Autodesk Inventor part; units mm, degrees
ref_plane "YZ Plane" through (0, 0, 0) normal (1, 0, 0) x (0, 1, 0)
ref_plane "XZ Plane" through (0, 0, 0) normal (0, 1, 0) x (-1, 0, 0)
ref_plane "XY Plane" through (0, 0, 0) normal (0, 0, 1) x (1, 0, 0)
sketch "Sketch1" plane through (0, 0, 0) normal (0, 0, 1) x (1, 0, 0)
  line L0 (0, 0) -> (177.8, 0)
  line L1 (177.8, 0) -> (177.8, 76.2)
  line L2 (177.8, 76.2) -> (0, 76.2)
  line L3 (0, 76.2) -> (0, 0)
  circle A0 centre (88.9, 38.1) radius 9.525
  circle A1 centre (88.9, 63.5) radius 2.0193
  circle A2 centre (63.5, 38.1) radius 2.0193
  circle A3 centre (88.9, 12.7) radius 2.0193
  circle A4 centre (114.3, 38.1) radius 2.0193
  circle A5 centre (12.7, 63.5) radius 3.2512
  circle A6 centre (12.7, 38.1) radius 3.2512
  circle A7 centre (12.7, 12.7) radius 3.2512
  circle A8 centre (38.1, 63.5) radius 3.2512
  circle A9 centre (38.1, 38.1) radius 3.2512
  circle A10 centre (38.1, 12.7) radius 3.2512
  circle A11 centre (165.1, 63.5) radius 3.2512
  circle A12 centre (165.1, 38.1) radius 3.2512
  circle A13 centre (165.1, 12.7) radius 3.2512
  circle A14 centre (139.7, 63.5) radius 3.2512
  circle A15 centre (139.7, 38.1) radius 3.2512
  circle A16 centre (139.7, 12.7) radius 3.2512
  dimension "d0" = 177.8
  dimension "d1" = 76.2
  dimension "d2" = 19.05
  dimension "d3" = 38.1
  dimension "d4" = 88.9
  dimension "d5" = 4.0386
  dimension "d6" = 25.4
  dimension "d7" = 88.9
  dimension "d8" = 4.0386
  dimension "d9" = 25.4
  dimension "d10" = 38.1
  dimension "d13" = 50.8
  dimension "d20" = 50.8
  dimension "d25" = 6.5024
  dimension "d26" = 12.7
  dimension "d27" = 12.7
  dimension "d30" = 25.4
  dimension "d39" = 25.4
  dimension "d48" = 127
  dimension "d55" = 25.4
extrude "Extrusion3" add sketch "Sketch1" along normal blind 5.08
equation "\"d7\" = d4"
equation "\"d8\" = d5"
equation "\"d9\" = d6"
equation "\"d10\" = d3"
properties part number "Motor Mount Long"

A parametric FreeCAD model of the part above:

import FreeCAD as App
import Part
import Sketcher
from FreeCAD import Vector
Q = App.Units.Quantity

doc = App.newDocument("Part")
params = doc.addObject("Spreadsheet::Sheet", "Params")
for row, (alias, value) in enumerate([
    ("sketch1_diameter", "0.75 in"),
    ("sketch1_width", "7 in"),
    ("sketch1_height", "3 in"),
    ("sketch1_diameter2", "0.256 in"),
    ("sketch1_diameter3", "0.159 in"),
    ("pad1_length", "0.2 in"),
], start=1):
    params.set(f"A{row}", alias)
    params.set(f"B{row}", "=" + value)
    params.setAlias(f"B{row}", alias)

body = doc.addObject("PartDesign::Body", "Body")

# Sketch on XY plane
sketch1 = body.newObject("Sketcher::SketchObject", "Sketch")
sketch1.AttachmentSupport = (doc.getObject("XY_Plane"), [""])
sketch1.MapMode = "FlatFace"
sketch1.addGeometry([
    Part.LineSegment(Vector(0, 76.2, 0), Vector(0, 0, 0)),  # 0
    Part.LineSegment(Vector(0, 0, 0), Vector(177.8, 0, 0)),  # 1
    Part.LineSegment(Vector(177.8, 0, 0), Vector(177.8, 76.2, 0)),  # 2
    Part.LineSegment(Vector(177.8, 76.2, 0), Vector(0, 76.2, 0)),  # 3
    Part.Circle(Vector(12.7, 12.7, 0), Vector(0, 0, 1), 3.2512),  # 4
    Part.Circle(Vector(38.1, 12.7, 0), Vector(0, 0, 1), 3.2512),  # 5
    Part.Circle(Vector(88.9, 12.7, 0), Vector(0, 0, 1), 2.0193),  # 6
    Part.Circle(Vector(139.7, 12.7, 0), Vector(0, 0, 1), 3.2512),  # 7
    Part.Circle(Vector(165.1, 12.7, 0), Vector(0, 0, 1), 3.2512),  # 8
    Part.Circle(Vector(12.7, 38.1, 0), Vector(0, 0, 1), 3.2512),  # 9
    Part.Circle(Vector(38.1, 38.1, 0), Vector(0, 0, 1), 3.2512),  # 10
    Part.Circle(Vector(63.5, 38.1, 0), Vector(0, 0, 1), 2.0193),  # 11
    Part.Circle(Vector(12.7, 63.5, 0), Vector(0, 0, 1), 3.2512),  # 12
    Part.Circle(Vector(38.1, 63.5, 0), Vector(0, 0, 1), 3.2512),  # 13
    Part.Circle(Vector(88.9, 38.1, 0), Vector(0, 0, 1), 9.525),  # 14
    Part.Circle(Vector(114.3, 38.1, 0), Vector(0, 0, 1), 2.0193),  # 15
    Part.Circle(Vector(139.7, 38.1, 0), Vector(0, 0, 1), 3.2512),  # 16
    Part.Circle(Vector(165.1, 38.1, 0), Vector(0, 0, 1), 3.2512),  # 17
    Part.Circle(Vector(88.9, 63.5, 0), Vector(0, 0, 1), 2.0193),  # 18
    Part.Circle(Vector(139.7, 63.5, 0), Vector(0, 0, 1), 3.2512),  # 19
    Part.Circle(Vector(165.1, 63.5, 0), Vector(0, 0, 1), 3.2512),  # 20
], False)
sketch1.addConstraint([
    Sketcher.Constraint("Coincident", 0, 2, 1, 1),
    Sketcher.Constraint("Coincident", 1, 2, 2, 1),
    Sketcher.Constraint("Coincident", 2, 2, 3, 1),
    Sketcher.Constraint("Coincident", 3, 2, 0, 1),
    Sketcher.Constraint("Vertical", 0),
    Sketcher.Constraint("Horizontal", 1),
    Sketcher.Constraint("Vertical", 2),
    Sketcher.Constraint("Horizontal", 3),
    Sketcher.Constraint("Coincident", 0, 2, -1, 1),
    Sketcher.Constraint("Equal", 4, 5),
    Sketcher.Constraint("Equal", 5, 7),
    Sketcher.Constraint("Equal", 7, 8),
    Sketcher.Constraint("Equal", 8, 9),
    Sketcher.Constraint("Equal", 9, 10),
    Sketcher.Constraint("Equal", 6, 11),
    Sketcher.Constraint("Equal", 10, 12),
    Sketcher.Constraint("Equal", 12, 13),
    Sketcher.Constraint("Equal", 11, 15),
    Sketcher.Constraint("Equal", 13, 16),
    Sketcher.Constraint("Equal", 16, 17),
    Sketcher.Constraint("Equal", 15, 18),
    Sketcher.Constraint("Equal", 17, 19),
    Sketcher.Constraint("Equal", 19, 20),
    Sketcher.Constraint("Horizontal", 4, 3, 5, 3),
    Sketcher.Constraint("Horizontal", 5, 3, 6, 3),
    Sketcher.Constraint("Horizontal", 6, 3, 7, 3),
    Sketcher.Constraint("Horizontal", 7, 3, 8, 3),
    Sketcher.Constraint("Horizontal", 9, 3, 10, 3),
    Sketcher.Constraint("Horizontal", 10, 3, 11, 3),
    Sketcher.Constraint("Horizontal", 12, 3, 13, 3),
    Sketcher.Constraint("Horizontal", 11, 3, 14, 3),
    Sketcher.Constraint("Horizontal", 14, 3, 15, 3),
    Sketcher.Constraint("Horizontal", 15, 3, 16, 3),
    Sketcher.Constraint("Horizontal", 16, 3, 17, 3),
    Sketcher.Constraint("Horizontal", 13, 3, 18, 3),
    Sketcher.Constraint("Horizontal", 18, 3, 19, 3),
    Sketcher.Constraint("Horizontal", 19, 3, 20, 3),
    Sketcher.Constraint("Vertical", 4, 3, 9, 3),
    Sketcher.Constraint("Vertical", 5, 3, 10, 3),
    Sketcher.Constraint("Vertical", 9, 3, 12, 3),
    Sketcher.Constraint("Vertical", 10, 3, 13, 3),
    Sketcher.Constraint("Vertical", 6, 3, 14, 3),
    Sketcher.Constraint("Vertical", 7, 3, 16, 3),
    Sketcher.Constraint("Vertical", 8, 3, 17, 3),
    Sketcher.Constraint("Vertical", 14, 3, 18, 3),
    Sketcher.Constraint("Vertical", 16, 3, 19, 3),
    Sketcher.Constraint("Vertical", 17, 3, 20, 3),
    Sketcher.Constraint("Diameter", 14, Q("0.75 in")),
    Sketcher.Constraint("DistanceX", 1, 1, 1, 2, Q("7 in")),
    Sketcher.Constraint("DistanceY", 0, 2, 0, 1, Q("3 in")),
    Sketcher.Constraint("Diameter", 4, Q("0.256 in")),
    Sketcher.Constraint("Diameter", 6, Q("0.159 in")),
    Sketcher.Constraint("DistanceX", 4, 3, 5, 3, Q("1 in")),
    Sketcher.Constraint("DistanceX", 5, 3, 6, 3, Q("2 in")),
    Sketcher.Constraint("DistanceX", 6, 3, 7, 3, Q("2 in")),
    Sketcher.Constraint("DistanceX", 7, 3, 8, 3, Q("1 in")),
    Sketcher.Constraint("DistanceY", 4, 3, 9, 3, Q("1 in")),
    Sketcher.Constraint("DistanceX", 10, 3, 11, 3, Q("1 in")),
    Sketcher.Constraint("DistanceY", 9, 3, 12, 3, Q("1 in")),
    Sketcher.Constraint("DistanceX", 14, 3, 15, 3, Q("1 in")),
    Sketcher.Constraint("DistanceX", -1, 1, 4, 3, Q("0.5 in")),
    Sketcher.Constraint("DistanceY", -1, 1, 4, 3, Q("0.5 in")),
])
sketch1.setExpression("Constraints[47]", "Params.sketch1_diameter")
sketch1.setExpression("Constraints[48]", "Params.sketch1_width")
sketch1.setExpression("Constraints[49]", "Params.sketch1_height")
sketch1.setExpression("Constraints[50]", "Params.sketch1_diameter2")
sketch1.setExpression("Constraints[51]", "Params.sketch1_diameter3")
pad1 = body.newObject("PartDesign::Pad", "Pad")
pad1.Profile = sketch1
pad1.setExpression("Length", "Params.pad1_length")

doc.recompute()
